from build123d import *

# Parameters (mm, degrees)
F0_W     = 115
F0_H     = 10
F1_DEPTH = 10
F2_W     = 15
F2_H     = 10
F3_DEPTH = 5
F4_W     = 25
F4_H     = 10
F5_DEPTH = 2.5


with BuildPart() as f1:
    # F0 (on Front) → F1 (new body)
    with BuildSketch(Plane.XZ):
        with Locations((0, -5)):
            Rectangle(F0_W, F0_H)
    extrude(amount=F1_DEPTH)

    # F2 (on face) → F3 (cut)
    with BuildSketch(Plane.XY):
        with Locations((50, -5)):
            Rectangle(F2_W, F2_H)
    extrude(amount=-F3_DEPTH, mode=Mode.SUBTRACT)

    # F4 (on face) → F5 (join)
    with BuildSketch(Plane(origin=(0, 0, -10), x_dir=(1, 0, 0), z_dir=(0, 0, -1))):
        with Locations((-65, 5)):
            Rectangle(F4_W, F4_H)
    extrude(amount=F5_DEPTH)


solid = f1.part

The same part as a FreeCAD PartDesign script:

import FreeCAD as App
import Part
import Sketcher

doc = App.newDocument("Part")
params = doc.addObject("Spreadsheet::Sheet", "Params")
for row, (alias, value) in enumerate([
    ("sketch1_width", "115 mm"),
    ("sketch1_height", "10 mm"),
    ("pad1_length", "10 mm"),
    ("sketch2_width", "15 mm"),
    ("sketch2_height", "10 mm"),
    ("pocket1_length", "5 mm"),
    ("sketch3_width", "25 mm"),
    ("sketch3_height", "10 mm"),
    ("pad2_length", "2.5 mm"),
], start=1):
    params.set(f"A{row}", alias)
    params.set(f"B{row}", "=" + value)
    params.setAlias(f"B{row}", alias)

body = doc.addObject("PartDesign::Body", "Body")

# Sketch on XZ plane
sketch1 = doc.addObject("Sketcher::SketchObject", "Sketch")
body.addObject(sketch1)
sketch1.AttachmentSupport = (doc.XZ_Plane, [""])
sketch1.MapMode = "FlatFace"
sketch1.addGeometry(Part.LineSegment(App.Vector(-58, 0, 0), App.Vector(-58, -10, 0)), False)
sketch1.addGeometry(Part.LineSegment(App.Vector(-58, -10, 0), App.Vector(58, -10, 0)), False)
sketch1.addGeometry(Part.LineSegment(App.Vector(58, -10, 0), App.Vector(58, 0, 0)), False)
sketch1.addGeometry(Part.LineSegment(App.Vector(58, 0, 0), App.Vector(-58, 0, 0)), False)
sketch1.addConstraint(Sketcher.Constraint("Coincident", 0, 2, 1, 1))
sketch1.addConstraint(Sketcher.Constraint("Coincident", 1, 2, 2, 1))
sketch1.addConstraint(Sketcher.Constraint("Coincident", 2, 2, 3, 1))
sketch1.addConstraint(Sketcher.Constraint("Coincident", 3, 2, 0, 1))
sketch1.addConstraint(Sketcher.Constraint("Vertical", 0))
sketch1.addConstraint(Sketcher.Constraint("Horizontal", 1))
sketch1.addConstraint(Sketcher.Constraint("Vertical", 2))
sketch1.addConstraint(Sketcher.Constraint("Horizontal", 3))
sketch1.addConstraint(Sketcher.Constraint("Symmetric", 2, 2, 3, 2, -1, 1))
sketch1.addConstraint(Sketcher.Constraint("DistanceX", 1, 1, 1, 2, 115.0))
sketch1.addConstraint(Sketcher.Constraint("DistanceY", 0, 2, 0, 1, 10.0))
sketch1.setExpression("Constraints[9]", "Params.sketch1_width")
sketch1.setExpression("Constraints[10]", "Params.sketch1_height")
pad1 = doc.addObject("PartDesign::Pad", "Pad")
body.addObject(pad1)
pad1.Profile = sketch1
pad1.setExpression("Length", "Params.pad1_length")

# Sketch on XY plane
sketch2 = doc.addObject("Sketcher::SketchObject", "Sketch001")
body.addObject(sketch2)
sketch2.AttachmentSupport = (doc.XY_Plane, [""])
sketch2.MapMode = "FlatFace"
sketch2.addGeometry(Part.LineSegment(App.Vector(42, 0, 0), App.Vector(42, -10, 0)), False)
sketch2.addGeometry(Part.LineSegment(App.Vector(42, -10, 0), App.Vector(58, -10, 0)), False)
sketch2.addGeometry(Part.LineSegment(App.Vector(58, -10, 0), App.Vector(58, 0, 0)), False)
sketch2.addGeometry(Part.LineSegment(App.Vector(58, 0, 0), App.Vector(42, 0, 0)), False)
sketch2.addConstraint(Sketcher.Constraint("Coincident", 0, 2, 1, 1))
sketch2.addConstraint(Sketcher.Constraint("Coincident", 1, 2, 2, 1))
sketch2.addConstraint(Sketcher.Constraint("Coincident", 2, 2, 3, 1))
sketch2.addConstraint(Sketcher.Constraint("Coincident", 3, 2, 0, 1))
sketch2.addConstraint(Sketcher.Constraint("Vertical", 0))
sketch2.addConstraint(Sketcher.Constraint("Horizontal", 1))
sketch2.addConstraint(Sketcher.Constraint("Vertical", 2))
sketch2.addConstraint(Sketcher.Constraint("Horizontal", 3))
sketch2.addConstraint(Sketcher.Constraint("PointOnObject", 2, 2, -1))
sketch2.addConstraint(Sketcher.Constraint("DistanceX", 1, 1, 1, 2, 15.0))
sketch2.addConstraint(Sketcher.Constraint("DistanceY", 0, 2, 0, 1, 10.0))
sketch2.addConstraint(Sketcher.Constraint("DistanceX", -1, 1, 0, 2, 42.5))
sketch2.setExpression("Constraints[9]", "Params.sketch2_width")
sketch2.setExpression("Constraints[10]", "Params.sketch2_height")
pocket1 = doc.addObject("PartDesign::Pocket", "Pocket")
body.addObject(pocket1)
pocket1.Profile = sketch2
pocket1.setExpression("Length", "Params.pocket1_length")

# Sketch on XY plane
sketch3 = doc.addObject("Sketcher::SketchObject", "Sketch002")
body.addObject(sketch3)
sketch3.AttachmentSupport = (doc.XY_Plane, [""])
sketch3.MapMode = "FlatFace"
sketch3.AttachmentOffset = App.Placement(App.Vector(0, 0, -10), App.Rotation())
sketch3.addGeometry(Part.LineSegment(App.Vector(-78, -10, 0), App.Vector(-78, 0, 0)), False)
sketch3.addGeometry(Part.LineSegment(App.Vector(-78, 0, 0), App.Vector(-52, 0, 0)), False)
sketch3.addGeometry(Part.LineSegment(App.Vector(-52, 0, 0), App.Vector(-52, -10, 0)), False)
sketch3.addGeometry(Part.LineSegment(App.Vector(-52, -10, 0), App.Vector(-78, -10, 0)), False)
sketch3.addConstraint(Sketcher.Constraint("Coincident", 0, 2, 1, 1))
sketch3.addConstraint(Sketcher.Constraint("Coincident", 1, 2, 2, 1))
sketch3.addConstraint(Sketcher.Constraint("Coincident", 2, 2, 3, 1))
sketch3.addConstraint(Sketcher.Constraint("Coincident", 3, 2, 0, 1))
sketch3.addConstraint(Sketcher.Constraint("Vertical", 0))
sketch3.addConstraint(Sketcher.Constraint("Horizontal", 1))
sketch3.addConstraint(Sketcher.Constraint("Vertical", 2))
sketch3.addConstraint(Sketcher.Constraint("Horizontal", 3))
sketch3.addConstraint(Sketcher.Constraint("PointOnObject", 0, 2, -1))
sketch3.addConstraint(Sketcher.Constraint("DistanceX", 1, 1, 1, 2, 25.0))
sketch3.addConstraint(Sketcher.Constraint("DistanceY", 0, 1, 0, 2, 10.0))
sketch3.addConstraint(Sketcher.Constraint("DistanceX", 0, 2, -1, 1, 77.5))
sketch3.setExpression("Constraints[9]", "Params.sketch3_width")
sketch3.setExpression("Constraints[10]", "Params.sketch3_height")
pad2 = doc.addObject("PartDesign::Pad", "Pad001")
body.addObject(pad2)
pad2.Profile = sketch3
pad2.setExpression("Length", "Params.pad2_length")
pad2.Reversed = True

doc.recompute()
